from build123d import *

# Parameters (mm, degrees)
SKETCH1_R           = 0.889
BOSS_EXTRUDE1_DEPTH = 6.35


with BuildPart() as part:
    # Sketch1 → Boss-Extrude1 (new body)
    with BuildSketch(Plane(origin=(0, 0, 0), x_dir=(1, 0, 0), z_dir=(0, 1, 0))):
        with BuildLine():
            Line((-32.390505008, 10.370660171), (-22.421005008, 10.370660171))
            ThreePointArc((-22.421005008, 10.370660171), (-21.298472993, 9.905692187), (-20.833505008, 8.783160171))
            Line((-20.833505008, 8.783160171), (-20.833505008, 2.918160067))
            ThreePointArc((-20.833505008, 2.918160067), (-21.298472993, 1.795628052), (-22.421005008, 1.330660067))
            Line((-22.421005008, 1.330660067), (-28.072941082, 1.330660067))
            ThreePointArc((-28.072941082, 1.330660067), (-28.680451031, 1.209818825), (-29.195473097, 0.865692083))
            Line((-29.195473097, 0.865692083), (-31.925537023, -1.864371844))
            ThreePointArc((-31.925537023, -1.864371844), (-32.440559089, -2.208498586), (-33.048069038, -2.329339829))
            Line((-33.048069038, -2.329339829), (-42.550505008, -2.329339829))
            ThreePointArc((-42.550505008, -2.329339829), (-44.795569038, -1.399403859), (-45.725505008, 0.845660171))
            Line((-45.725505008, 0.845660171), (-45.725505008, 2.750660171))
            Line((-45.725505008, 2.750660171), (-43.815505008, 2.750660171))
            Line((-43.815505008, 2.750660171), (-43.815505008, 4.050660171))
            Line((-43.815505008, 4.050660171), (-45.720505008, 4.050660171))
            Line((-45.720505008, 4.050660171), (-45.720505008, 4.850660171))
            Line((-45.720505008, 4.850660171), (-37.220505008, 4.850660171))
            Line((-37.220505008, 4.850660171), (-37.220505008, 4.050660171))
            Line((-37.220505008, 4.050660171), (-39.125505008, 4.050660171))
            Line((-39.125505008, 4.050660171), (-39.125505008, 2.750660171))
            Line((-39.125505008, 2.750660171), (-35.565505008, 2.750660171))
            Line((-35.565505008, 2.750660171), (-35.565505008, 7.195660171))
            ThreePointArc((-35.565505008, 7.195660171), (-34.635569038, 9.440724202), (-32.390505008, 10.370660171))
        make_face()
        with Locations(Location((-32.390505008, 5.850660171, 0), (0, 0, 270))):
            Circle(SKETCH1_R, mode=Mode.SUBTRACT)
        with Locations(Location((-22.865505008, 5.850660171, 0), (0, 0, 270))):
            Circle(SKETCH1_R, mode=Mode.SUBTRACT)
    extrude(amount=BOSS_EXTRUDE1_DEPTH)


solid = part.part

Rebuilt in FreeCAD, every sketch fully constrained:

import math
import FreeCAD as App
import Part
import Sketcher
from FreeCAD import Vector
Q = App.Units.Quantity

doc = App.newDocument("Part")
body = doc.addObject("PartDesign::Body", "Body")

# Sketch on XZ plane
sketch1 = body.newObject("Sketcher::SketchObject", "Sketch")
sketch1.AttachmentSupport = (doc.getObject("XZ_Plane"), [""])
sketch1.MapMode = "FlatFace"
sketch1.addGeometry(Part.LineSegment(Vector(-22.4, -10.4, 0), Vector(-32.4, -10.4, 0)), False)
sketch1.addGeometry(Part.ArcOfCircle(Part.Circle(Vector(-32.4, -7.2, 0), Vector(0, 0, 1), 3.2), math.radians(180), math.radians(270)), False)
sketch1.addGeometry(Part.LineSegment(Vector(-35.6, -7.2, 0), Vector(-35.6, -2.8, 0)), False)
sketch1.addGeometry(Part.LineSegment(Vector(-35.6, -2.8, 0), Vector(-39.1, -2.8, 0)), False)
sketch1.addGeometry(Part.LineSegment(Vector(-39.1, -2.8, 0), Vector(-39.1, -4.1, 0)), False)
sketch1.addGeometry(Part.LineSegment(Vector(-39.1, -4.1, 0), Vector(-37.2, -4.1, 0)), False)
sketch1.addGeometry(Part.LineSegment(Vector(-37.2, -4.1, 0), Vector(-37.2, -4.9, 0)), False)
sketch1.addGeometry(Part.LineSegment(Vector(-37.2, -4.9, 0), Vector(-45.7, -4.9, 0)), False)
sketch1.addGeometry(Part.LineSegment(Vector(-45.7, -4.9, 0), Vector(-45.7, -4.1, 0)), False)
sketch1.addGeometry(Part.LineSegment(Vector(-45.7, -4.1, 0), Vector(-43.8, -4.1, 0)), False)
sketch1.addGeometry(Part.LineSegment(Vector(-43.8, -4.1, 0), Vector(-43.8, -2.8, 0)), False)
sketch1.addGeometry(Part.LineSegment(Vector(-43.8, -2.8, 0), Vector(-45.7, -2.8, 0)), False)
sketch1.addGeometry(Part.LineSegment(Vector(-45.7, -2.8, 0), Vector(-45.7, -0.8, 0)), False)
sketch1.addGeometry(Part.ArcOfCircle(Part.Circle(Vector(-42.6, -0.8, 0), Vector(0, 0, 1), 3.2), math.radians(90), math.radians(180)), False)
sketch1.addGeometry(Part.LineSegment(Vector(-42.6, 2.3, 0), Vector(-33, 2.3, 0)), False)
sketch1.addGeometry(Part.ArcOfCircle(Part.Circle(Vector(-33, 0.7, 0), Vector(0, 0, 1), 1.6), math.radians(45), math.radians(90)), False)
sketch1.addGeometry(Part.LineSegment(Vector(-31.9, 1.9, 0), Vector(-29.2, -0.9, 0)), False)
sketch1.addGeometry(Part.ArcOfCircle(Part.Circle(Vector(-28.1, 0.3, 0), Vector(0, 0, 1), 1.6), math.radians(-135), math.radians(-90)), False)
sketch1.addGeometry(Part.LineSegment(Vector(-28.1, -1.3, 0), Vector(-22.4, -1.3, 0)), False)
sketch1.addGeometry(Part.ArcOfCircle(Part.Circle(Vector(-22.4, -2.9, 0), Vector(0, 0, 1), 1.6), math.radians(0), math.radians(90)), False)
sketch1.addGeometry(Part.LineSegment(Vector(-20.8, -2.9, 0), Vector(-20.8, -8.8, 0)), False)
sketch1.addGeometry(Part.ArcOfCircle(Part.Circle(Vector(-22.4, -8.8, 0), Vector(0, 0, 1), 1.6), math.radians(-90), math.radians(0)), False)
sketch1.addGeometry(Part.Circle(Vector(-22.9, -5.9, 0), Vector(0, 0, 1), 0.9), False)
sketch1.addGeometry(Part.Circle(Vector(-32.4, -5.9, 0), Vector(0, 0, 1), 0.9), False)
sketch1.addConstraint(Sketcher.Constraint("Tangent", 0, 2, 1, 2))
sketch1.addConstraint(Sketcher.Constraint("Tangent", 1, 1, 2, 1))
sketch1.addConstraint(Sketcher.Constraint("Coincident", 2, 2, 3, 1))
sketch1.addConstraint(Sketcher.Constraint("Coincident", 3, 2, 4, 1))
sketch1.addConstraint(Sketcher.Constraint("Coincident", 4, 2, 5, 1))
sketch1.addConstraint(Sketcher.Constraint("Coincident", 5, 2, 6, 1))
sketch1.addConstraint(Sketcher.Constraint("Coincident", 6, 2, 7, 1))
sketch1.addConstraint(Sketcher.Constraint("Coincident", 7, 2, 8, 1))
sketch1.addConstraint(Sketcher.Constraint("Coincident", 8, 2, 9, 1))
sketch1.addConstraint(Sketcher.Constraint("Coincident", 9, 2, 10, 1))
sketch1.addConstraint(Sketcher.Constraint("Coincident", 10, 2, 11, 1))
sketch1.addConstraint(Sketcher.Constraint("Coincident", 11, 2, 12, 1))
sketch1.addConstraint(Sketcher.Constraint("Tangent", 12, 2, 13, 2))
sketch1.addConstraint(Sketcher.Constraint("Tangent", 13, 1, 14, 1))
sketch1.addConstraint(Sketcher.Constraint("Tangent", 14, 2, 15, 2))
sketch1.addConstraint(Sketcher.Constraint("Tangent", 15, 1, 16, 1))
sketch1.addConstraint(Sketcher.Constraint("Tangent", 16, 2, 17, 1))
sketch1.addConstraint(Sketcher.Constraint("Tangent", 17, 2, 18, 1))
sketch1.addConstraint(Sketcher.Constraint("Tangent", 18, 2, 19, 2))
sketch1.addConstraint(Sketcher.Constraint("Tangent", 19, 1, 20, 1))
sketch1.addConstraint(Sketcher.Constraint("Tangent", 20, 2, 21, 2))
sketch1.addConstraint(Sketcher.Constraint("Tangent", 21, 1, 0, 1))
sketch1.addConstraint(Sketcher.Constraint("Horizontal", 0))
sketch1.addConstraint(Sketcher.Constraint("Vertical", 2))
sketch1.addConstraint(Sketcher.Constraint("Horizontal", 3))
sketch1.addConstraint(Sketcher.Constraint("Vertical", 4))
sketch1.addConstraint(Sketcher.Constraint("Horizontal", 5))
sketch1.addConstraint(Sketcher.Constraint("Vertical", 6))
sketch1.addConstraint(Sketcher.Constraint("Horizontal", 7))
sketch1.addConstraint(Sketcher.Constraint("Vertical", 8))
sketch1.addConstraint(Sketcher.Constraint("Horizontal", 9))
sketch1.addConstraint(Sketcher.Constraint("Vertical", 10))
sketch1.addConstraint(Sketcher.Constraint("Horizontal", 11))
sketch1.addConstraint(Sketcher.Constraint("Vertical", 12))
sketch1.addConstraint(Sketcher.Constraint("Horizontal", 14))
sketch1.addConstraint(Sketcher.Constraint("Horizontal", 18))
sketch1.addConstraint(Sketcher.Constraint("Vertical", 20))
sketch1.addConstraint(Sketcher.Constraint("Equal", 1, 13))
sketch1.addConstraint(Sketcher.Constraint("Equal", 15, 17))
sketch1.addConstraint(Sketcher.Constraint("Equal", 17, 19))
sketch1.addConstraint(Sketcher.Constraint("Equal", 19, 21))
sketch1.addConstraint(Sketcher.Constraint("Equal", 22, 23))
sketch1.addConstraint(Sketcher.Constraint("Horizontal", 22, 3, 23, 3))
sketch1.addConstraint(Sketcher.Constraint("Horizontal", 5, 2, 8, 2))
sketch1.addConstraint(Sketcher.Constraint("Horizontal", 3, 2, 10, 2))
sketch1.addConstraint(Sketcher.Constraint("Vertical", 1, 3, 23, 3))
sketch1.addConstraint(Sketcher.Constraint("Equal", 5, 9))
sketch1.addConstraint(Sketcher.Constraint("Equal", 9, 12))
sketch1.addConstraint(Sketcher.Constraint("Diameter", 22, Q("0.07 in")))
sketch1.addConstraint(Sketcher.Constraint("Angle", 16, Q("-45 deg")))
sketch1.addConstraint(Sketcher.Constraint("Radius", 1, Q("0.125 in")))
sketch1.addConstraint(Sketcher.Constraint("Radius", 15, Q("0.0625 in")))
sketch1.addConstraint(Sketcher.Constraint("DistanceX", 13, 3, 1, 3, Q("0.4 in")))
sketch1.addConstraint(Sketcher.Constraint("DistanceY", 10, 2, 13, 1, Q("0.2 in")))
sketch1.addConstraint(Sketcher.Constraint("DistanceY", 2, 1, 2, 2, Q("0.175 in")))
sketch1.addConstraint(Sketcher.Constraint("DistanceX", 22, 3, 19, 1, Q("0.08 in")))
sketch1.addConstraint(Sketcher.Constraint("DistanceX", 0, 2, 0, 1, Q("0.3925 in")))
sketch1.addConstraint(Sketcher.Constraint("DistanceX", 3, 2, 3, 1, Q("3.56 mm")))
sketch1.addConstraint(Sketcher.Constraint("DistanceX", 7, 2, 7, 1, Q("8.5 mm")))
sketch1.addConstraint(Sketcher.Constraint("DistanceY", 4, 2, 4, 1, Q("1.3 mm")))
sketch1.addConstraint(Sketcher.Constraint("DistanceY", 6, 2, 6, 1, Q("0.8 mm")))
sketch1.addConstraint(Sketcher.Constraint("DistanceY", 20, 2, 20, 1, Q("5.865 mm")))
sketch1.addConstraint(Sketcher.Constraint("DistanceY", 21, 3, 22, 3, Q("2.9325 mm")))
sketch1.addConstraint(Sketcher.Constraint("DistanceX", 14, 1, 14, 2, Q("9.502436 mm")))
sketch1.addConstraint(Sketcher.Constraint("DistanceY", 1, 3, -1, 1, Q("7.19566 mm")))
sketch1.addConstraint(Sketcher.Constraint("DistanceX", 15, 3, -1, 1, Q("33.048069 mm")))
pad1 = body.newObject("PartDesign::Pad", "Pad")
pad1.Profile = sketch1
pad1.Length = Q("0.25 in")
pad1.Reversed = True

doc.recompute()
